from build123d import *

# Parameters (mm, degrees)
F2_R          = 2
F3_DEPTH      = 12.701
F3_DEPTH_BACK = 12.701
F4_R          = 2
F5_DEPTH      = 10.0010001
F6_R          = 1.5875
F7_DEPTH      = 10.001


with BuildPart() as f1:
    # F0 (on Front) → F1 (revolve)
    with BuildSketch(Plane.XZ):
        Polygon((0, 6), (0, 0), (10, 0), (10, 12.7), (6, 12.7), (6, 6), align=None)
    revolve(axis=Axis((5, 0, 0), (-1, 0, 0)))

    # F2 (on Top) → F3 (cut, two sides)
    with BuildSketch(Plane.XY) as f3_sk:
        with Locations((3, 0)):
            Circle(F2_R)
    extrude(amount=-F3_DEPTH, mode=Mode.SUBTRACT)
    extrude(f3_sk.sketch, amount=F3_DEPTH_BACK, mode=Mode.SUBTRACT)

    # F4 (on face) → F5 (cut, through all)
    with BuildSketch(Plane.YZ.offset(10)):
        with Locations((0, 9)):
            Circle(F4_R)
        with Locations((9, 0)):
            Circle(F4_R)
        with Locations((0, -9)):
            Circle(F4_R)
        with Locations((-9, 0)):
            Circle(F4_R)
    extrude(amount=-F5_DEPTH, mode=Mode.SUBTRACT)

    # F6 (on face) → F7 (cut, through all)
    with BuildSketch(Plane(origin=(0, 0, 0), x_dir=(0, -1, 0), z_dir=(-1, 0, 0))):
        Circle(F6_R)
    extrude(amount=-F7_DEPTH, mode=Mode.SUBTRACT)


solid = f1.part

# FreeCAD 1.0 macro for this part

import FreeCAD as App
import Part
import Sketcher
Q = App.Units.Quantity


def add_polygon(sketch, points):
    """Adds a closed chain of lines whose ends are joined by coincident constraints."""
    first, n = sketch.GeometryCount, len(points)
    for a, b in zip(points, points[1:] + points[:1]):
        sketch.addGeometry(Part.LineSegment(App.Vector(*a, 0), App.Vector(*b, 0)), False)
    for i in range(n):
        sketch.addConstraint(Sketcher.Constraint("Coincident", first + i, 2, first + (i + 1) % n, 1))

doc = App.newDocument("Part")
body = doc.addObject("PartDesign::Body", "Body")

# Sketch on XZ plane
sketch1 = body.newObject("Sketcher::SketchObject", "Sketch")
sketch1.AttachmentSupport = (doc.getObject("XZ_Plane"), [""])
sketch1.MapMode = "FlatFace"
add_polygon(sketch1, [(0, 6), (0, 0), (10, 0), (10, 12.7), (6, 12.7), (6, 6)])  # lines 0-5
sketch1.addConstraint(Sketcher.Constraint("Vertical", 0))
sketch1.addConstraint(Sketcher.Constraint("Horizontal", 1))
sketch1.addConstraint(Sketcher.Constraint("Vertical", 2))
sketch1.addConstraint(Sketcher.Constraint("Horizontal", 3))
sketch1.addConstraint(Sketcher.Constraint("Vertical", 4))
sketch1.addConstraint(Sketcher.Constraint("Horizontal", 5))
sketch1.addConstraint(Sketcher.Constraint("Coincident", 0, 2, -1, 1))
sketch1.addConstraint(Sketcher.Constraint("Equal", 5, 0))
sketch1.addConstraint(Sketcher.Constraint("DistanceX", 1, 1, 1, 2, Q("10 mm")))
sketch1.addConstraint(Sketcher.Constraint("DistanceX", 3, 2, 3, 1, Q("4 mm")))
sketch1.addConstraint(Sketcher.Constraint("DistanceY", 2, 1, 2, 2, Q("12.7 mm")))
revolution = body.newObject("PartDesign::Revolution", "Revolution")
revolution.Profile = sketch1
revolution.ReferenceAxis = (sketch1, ["H_Axis"])
revolution.Angle = 360

# Sketch on XY plane
sketch2 = body.newObject("Sketcher::SketchObject", "Sketch001")
sketch2.AttachmentSupport = (doc.getObject("XY_Plane"), [""])
sketch2.MapMode = "FlatFace"
sketch2.addGeometry(Part.Circle(App.Vector(3, 0, 0), App.Vector(0, 0, 1), 2), False)
sketch2.addConstraint(Sketcher.Constraint("PointOnObject", 0, 3, -1))
sketch2.addConstraint(Sketcher.Constraint("Diameter", 0, Q("4 mm")))
sketch2.addConstraint(Sketcher.Constraint("DistanceX", -1, 1, 0, 3, Q("3 mm")))
pocket1 = body.newObject("PartDesign::Pocket", "Pocket")
pocket1.Profile = sketch2
pocket1.Type = "ThroughAll"
pocket1.Midplane = True

# Sketch on YZ plane
sketch3 = body.newObject("Sketcher::SketchObject", "Sketch002")
sketch3.AttachmentSupport = (doc.getObject("YZ_Plane"), [""])
sketch3.MapMode = "FlatFace"
sketch3.AttachmentOffset = App.Placement(App.Vector(0, 0, 10), App.Rotation())
sketch3.addGeometry(Part.Circle(App.Vector(0, 9, 0), App.Vector(0, 0, 1), 2), False)
sketch3.addGeometry(Part.Circle(App.Vector(9, 0, 0), App.Vector(0, 0, 1), 2), False)
sketch3.addGeometry(Part.Circle(App.Vector(0, -9, 0), App.Vector(0, 0, 1), 2), False)
sketch3.addGeometry(Part.Circle(App.Vector(-9, 0, 0), App.Vector(0, 0, 1), 2), False)
sketch3.addConstraint(Sketcher.Constraint("Equal", 0, 1))
sketch3.addConstraint(Sketcher.Constraint("Equal", 1, 2))
sketch3.addConstraint(Sketcher.Constraint("Equal", 2, 3))
sketch3.addConstraint(Sketcher.Constraint("Symmetric", 0, 3, 2, 3, -1, 1))
sketch3.addConstraint(Sketcher.Constraint("Symmetric", 1, 3, 3, 3, -1, 1))
sketch3.addConstraint(Sketcher.Constraint("PointOnObject", 0, 3, -2))
sketch3.addConstraint(Sketcher.Constraint("PointOnObject", 1, 3, -1))
sketch3.addConstraint(Sketcher.Constraint("Diameter", 0, Q("4 mm")))
sketch3.addConstraint(Sketcher.Constraint("DistanceY", -1, 1, 0, 3, Q("9 mm")))
sketch3.addConstraint(Sketcher.Constraint("DistanceX", -1, 1, 1, 3, Q("9 mm")))
pocket2 = body.newObject("PartDesign::Pocket", "Pocket001")
pocket2.Profile = sketch3
pocket2.Type = "ThroughAll"

# Sketch on YZ plane
sketch4 = body.newObject("Sketcher::SketchObject", "Sketch003")
sketch4.AttachmentSupport = (doc.getObject("YZ_Plane"), [""])
sketch4.MapMode = "FlatFace"
sketch4.addGeometry(Part.Circle(App.Vector(0, 0, 0), App.Vector(0, 0, 1), 1.6), False)
sketch4.addConstraint(Sketcher.Constraint("Coincident", 0, 3, -1, 1))
sketch4.addConstraint(Sketcher.Constraint("Diameter", 0, Q("3.175 mm")))
pocket3 = body.newObject("PartDesign::Pocket", "Pocket002")
pocket3.Profile = sketch4
pocket3.Type = "ThroughAll"
pocket3.Reversed = True

doc.recompute()
